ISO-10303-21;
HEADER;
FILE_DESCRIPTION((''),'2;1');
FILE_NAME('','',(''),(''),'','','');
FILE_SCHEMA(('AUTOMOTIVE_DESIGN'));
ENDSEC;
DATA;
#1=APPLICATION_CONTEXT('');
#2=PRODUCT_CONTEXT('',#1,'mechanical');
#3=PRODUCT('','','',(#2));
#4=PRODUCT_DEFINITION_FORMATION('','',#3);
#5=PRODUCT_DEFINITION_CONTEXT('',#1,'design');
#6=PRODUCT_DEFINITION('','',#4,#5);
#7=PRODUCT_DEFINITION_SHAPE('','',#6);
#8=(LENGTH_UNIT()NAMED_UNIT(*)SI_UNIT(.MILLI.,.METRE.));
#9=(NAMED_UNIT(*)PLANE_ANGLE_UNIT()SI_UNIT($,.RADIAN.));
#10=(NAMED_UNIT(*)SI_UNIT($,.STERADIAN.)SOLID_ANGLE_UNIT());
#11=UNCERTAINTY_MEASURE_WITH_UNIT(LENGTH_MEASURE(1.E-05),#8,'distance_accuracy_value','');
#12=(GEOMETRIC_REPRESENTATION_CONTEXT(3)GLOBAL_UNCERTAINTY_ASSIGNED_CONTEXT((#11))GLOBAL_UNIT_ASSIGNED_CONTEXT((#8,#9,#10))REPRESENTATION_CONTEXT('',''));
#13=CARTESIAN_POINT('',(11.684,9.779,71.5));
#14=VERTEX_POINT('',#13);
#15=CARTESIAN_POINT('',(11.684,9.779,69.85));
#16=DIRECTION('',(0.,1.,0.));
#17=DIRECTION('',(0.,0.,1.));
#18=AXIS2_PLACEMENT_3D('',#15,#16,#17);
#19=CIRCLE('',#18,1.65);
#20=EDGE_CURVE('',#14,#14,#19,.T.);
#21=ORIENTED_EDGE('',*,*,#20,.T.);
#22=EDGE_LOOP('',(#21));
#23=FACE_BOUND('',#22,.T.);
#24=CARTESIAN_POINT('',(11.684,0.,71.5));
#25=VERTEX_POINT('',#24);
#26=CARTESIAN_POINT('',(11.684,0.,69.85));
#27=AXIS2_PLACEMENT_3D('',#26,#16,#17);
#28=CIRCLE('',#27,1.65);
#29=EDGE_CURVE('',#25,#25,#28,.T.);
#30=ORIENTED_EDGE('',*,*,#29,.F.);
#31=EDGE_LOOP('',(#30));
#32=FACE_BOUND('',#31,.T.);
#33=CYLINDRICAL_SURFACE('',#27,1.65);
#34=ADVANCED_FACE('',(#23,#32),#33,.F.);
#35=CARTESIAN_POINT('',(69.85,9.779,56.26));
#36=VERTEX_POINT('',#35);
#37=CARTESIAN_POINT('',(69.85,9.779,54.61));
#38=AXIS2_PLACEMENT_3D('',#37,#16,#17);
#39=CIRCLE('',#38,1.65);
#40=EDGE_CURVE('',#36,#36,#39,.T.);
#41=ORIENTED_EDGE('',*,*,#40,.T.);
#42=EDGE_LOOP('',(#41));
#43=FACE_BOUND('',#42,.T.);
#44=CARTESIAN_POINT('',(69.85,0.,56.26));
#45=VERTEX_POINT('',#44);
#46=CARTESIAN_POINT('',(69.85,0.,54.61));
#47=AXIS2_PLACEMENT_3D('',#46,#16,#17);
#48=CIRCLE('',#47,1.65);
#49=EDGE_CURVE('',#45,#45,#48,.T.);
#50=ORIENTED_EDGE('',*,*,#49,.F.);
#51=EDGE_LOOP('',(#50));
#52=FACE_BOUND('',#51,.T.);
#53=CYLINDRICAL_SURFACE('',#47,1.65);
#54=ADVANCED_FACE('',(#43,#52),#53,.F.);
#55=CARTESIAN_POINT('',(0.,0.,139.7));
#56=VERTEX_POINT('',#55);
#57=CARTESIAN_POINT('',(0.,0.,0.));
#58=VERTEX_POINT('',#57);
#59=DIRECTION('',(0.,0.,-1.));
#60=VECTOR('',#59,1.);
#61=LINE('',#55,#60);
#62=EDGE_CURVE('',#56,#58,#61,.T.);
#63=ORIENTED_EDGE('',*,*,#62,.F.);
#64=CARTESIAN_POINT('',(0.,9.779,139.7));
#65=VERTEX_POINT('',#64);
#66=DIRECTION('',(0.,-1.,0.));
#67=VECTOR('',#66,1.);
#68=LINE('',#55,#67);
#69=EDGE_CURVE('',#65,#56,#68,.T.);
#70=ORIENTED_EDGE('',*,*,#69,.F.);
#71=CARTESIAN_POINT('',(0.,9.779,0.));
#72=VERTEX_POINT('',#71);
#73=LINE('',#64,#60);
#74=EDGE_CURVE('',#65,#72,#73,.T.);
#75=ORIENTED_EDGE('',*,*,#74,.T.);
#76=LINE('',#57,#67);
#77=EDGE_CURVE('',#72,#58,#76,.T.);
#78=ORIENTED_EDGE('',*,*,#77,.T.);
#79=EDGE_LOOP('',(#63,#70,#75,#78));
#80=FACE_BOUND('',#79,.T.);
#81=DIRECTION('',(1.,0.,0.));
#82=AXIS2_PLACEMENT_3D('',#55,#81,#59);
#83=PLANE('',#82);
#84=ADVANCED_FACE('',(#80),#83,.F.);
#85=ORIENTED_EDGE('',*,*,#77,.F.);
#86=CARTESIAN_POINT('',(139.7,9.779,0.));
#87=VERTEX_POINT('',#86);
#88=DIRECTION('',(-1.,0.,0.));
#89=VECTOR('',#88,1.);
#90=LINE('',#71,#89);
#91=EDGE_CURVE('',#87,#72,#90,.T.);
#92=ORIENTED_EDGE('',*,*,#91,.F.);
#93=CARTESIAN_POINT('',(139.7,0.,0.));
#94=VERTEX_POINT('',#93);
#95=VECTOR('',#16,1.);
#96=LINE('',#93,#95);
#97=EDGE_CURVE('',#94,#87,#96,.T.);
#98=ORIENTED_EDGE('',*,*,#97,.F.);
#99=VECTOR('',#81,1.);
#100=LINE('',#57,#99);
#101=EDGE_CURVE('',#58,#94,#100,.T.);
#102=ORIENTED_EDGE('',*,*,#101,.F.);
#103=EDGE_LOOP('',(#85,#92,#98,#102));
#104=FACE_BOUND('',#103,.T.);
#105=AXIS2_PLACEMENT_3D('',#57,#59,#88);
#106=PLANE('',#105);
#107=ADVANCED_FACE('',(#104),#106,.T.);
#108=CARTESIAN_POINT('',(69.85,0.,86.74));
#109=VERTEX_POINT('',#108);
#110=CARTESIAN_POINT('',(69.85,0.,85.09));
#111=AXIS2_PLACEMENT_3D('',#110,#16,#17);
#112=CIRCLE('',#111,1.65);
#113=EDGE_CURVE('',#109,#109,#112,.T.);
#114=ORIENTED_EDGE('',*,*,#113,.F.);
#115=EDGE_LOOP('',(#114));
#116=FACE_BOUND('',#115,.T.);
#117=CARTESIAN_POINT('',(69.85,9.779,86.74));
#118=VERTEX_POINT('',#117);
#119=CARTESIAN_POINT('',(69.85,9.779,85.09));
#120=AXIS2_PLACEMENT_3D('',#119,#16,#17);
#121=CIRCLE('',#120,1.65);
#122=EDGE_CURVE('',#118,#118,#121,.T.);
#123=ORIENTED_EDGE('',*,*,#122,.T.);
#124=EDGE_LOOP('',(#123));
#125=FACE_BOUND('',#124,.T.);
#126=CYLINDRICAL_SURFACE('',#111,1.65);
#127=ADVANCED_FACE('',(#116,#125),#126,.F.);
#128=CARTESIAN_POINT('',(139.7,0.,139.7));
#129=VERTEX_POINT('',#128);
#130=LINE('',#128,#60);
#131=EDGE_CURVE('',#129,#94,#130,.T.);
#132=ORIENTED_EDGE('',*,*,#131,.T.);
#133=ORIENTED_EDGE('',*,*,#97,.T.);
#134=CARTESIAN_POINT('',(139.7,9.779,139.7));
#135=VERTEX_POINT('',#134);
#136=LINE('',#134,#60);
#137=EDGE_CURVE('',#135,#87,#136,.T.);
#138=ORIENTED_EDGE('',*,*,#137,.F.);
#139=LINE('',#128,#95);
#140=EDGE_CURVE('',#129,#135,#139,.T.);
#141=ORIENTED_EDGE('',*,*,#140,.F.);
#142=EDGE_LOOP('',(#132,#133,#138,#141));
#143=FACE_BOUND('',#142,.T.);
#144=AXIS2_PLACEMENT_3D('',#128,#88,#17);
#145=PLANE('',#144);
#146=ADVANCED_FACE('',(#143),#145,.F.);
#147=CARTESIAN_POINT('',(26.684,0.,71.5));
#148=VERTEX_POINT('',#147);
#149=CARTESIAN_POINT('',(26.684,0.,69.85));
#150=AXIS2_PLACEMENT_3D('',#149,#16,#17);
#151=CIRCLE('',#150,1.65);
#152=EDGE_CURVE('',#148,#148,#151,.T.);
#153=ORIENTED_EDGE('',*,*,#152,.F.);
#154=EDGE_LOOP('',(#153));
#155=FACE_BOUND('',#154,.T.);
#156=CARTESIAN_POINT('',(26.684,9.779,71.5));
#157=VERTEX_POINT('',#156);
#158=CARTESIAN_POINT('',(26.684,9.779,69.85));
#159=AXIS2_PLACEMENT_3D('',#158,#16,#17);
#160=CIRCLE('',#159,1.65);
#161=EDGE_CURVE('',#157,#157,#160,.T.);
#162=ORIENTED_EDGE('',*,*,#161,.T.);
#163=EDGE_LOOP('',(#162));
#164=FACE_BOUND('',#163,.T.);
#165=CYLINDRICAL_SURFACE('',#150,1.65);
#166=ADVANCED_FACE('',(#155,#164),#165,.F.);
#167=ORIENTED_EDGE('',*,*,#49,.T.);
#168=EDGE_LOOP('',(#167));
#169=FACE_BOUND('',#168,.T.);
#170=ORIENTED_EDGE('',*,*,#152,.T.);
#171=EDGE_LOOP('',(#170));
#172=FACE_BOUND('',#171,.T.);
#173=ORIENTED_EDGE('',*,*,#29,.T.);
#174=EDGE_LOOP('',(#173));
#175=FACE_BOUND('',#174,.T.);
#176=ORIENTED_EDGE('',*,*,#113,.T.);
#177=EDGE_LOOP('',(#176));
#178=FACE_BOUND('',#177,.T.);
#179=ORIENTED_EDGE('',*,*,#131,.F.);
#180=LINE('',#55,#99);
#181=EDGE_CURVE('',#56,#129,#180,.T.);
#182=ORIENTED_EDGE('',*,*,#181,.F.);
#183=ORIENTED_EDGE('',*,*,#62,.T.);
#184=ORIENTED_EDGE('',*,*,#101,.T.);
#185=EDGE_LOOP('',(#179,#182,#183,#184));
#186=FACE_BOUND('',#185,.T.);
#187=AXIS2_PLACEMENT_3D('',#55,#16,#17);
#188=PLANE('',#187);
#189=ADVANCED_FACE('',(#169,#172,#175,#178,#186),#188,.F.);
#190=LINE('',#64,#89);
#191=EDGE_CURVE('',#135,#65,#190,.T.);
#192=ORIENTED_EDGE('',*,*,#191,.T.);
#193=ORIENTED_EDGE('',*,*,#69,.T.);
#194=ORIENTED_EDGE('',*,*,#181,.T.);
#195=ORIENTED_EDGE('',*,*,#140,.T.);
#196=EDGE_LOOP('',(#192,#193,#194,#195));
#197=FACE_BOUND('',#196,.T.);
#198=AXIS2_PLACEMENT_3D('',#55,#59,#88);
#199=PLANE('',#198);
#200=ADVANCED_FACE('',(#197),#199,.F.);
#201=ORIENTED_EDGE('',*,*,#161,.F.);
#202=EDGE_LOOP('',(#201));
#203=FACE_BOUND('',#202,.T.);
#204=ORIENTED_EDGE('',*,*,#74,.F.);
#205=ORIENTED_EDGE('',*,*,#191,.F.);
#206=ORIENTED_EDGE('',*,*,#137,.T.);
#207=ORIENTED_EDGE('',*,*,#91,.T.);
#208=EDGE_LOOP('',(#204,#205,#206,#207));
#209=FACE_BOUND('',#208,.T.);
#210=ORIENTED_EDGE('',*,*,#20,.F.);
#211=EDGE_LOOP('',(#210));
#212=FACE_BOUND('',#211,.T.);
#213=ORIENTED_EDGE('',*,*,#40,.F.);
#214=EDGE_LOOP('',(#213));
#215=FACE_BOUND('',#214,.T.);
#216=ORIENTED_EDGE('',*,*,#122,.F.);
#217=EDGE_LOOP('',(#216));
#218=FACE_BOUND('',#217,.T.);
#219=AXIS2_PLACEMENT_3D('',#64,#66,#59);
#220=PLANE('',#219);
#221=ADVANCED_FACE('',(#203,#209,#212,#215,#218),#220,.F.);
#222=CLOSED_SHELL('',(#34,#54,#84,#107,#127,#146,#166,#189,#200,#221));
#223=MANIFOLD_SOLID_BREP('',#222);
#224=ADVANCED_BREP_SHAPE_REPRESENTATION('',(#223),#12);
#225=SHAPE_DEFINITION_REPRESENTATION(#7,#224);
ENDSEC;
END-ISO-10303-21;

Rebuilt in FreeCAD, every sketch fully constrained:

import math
import FreeCAD as App
import Part
import Sketcher
Q = App.Units.Quantity


def add_polygon(sketch, points):
    """Adds a closed chain of lines whose ends are joined by coincident constraints."""
    first, n = sketch.GeometryCount, len(points)
    for a, b in zip(points, points[1:] + points[:1]):
        sketch.addGeometry(Part.LineSegment(App.Vector(*a, 0), App.Vector(*b, 0)), False)
    for i in range(n):
        sketch.addConstraint(Sketcher.Constraint("Coincident", first + i, 2, first + (i + 1) % n, 1))

doc = App.newDocument("Part")
body = doc.addObject("PartDesign::Body", "Body")

# Sketch on XY plane
sketch1 = body.newObject("Sketcher::SketchObject", "Sketch")
sketch1.AttachmentSupport = (doc.getObject("XY_Plane"), [""])
sketch1.MapMode = "FlatFace"
add_polygon(sketch1, [(0, 10), (0, 0), (140, 0), (140, 10)])  # lines 0-3
sketch1.addConstraint([
    Sketcher.Constraint("Vertical", 0),
    Sketcher.Constraint("Horizontal", 1),
    Sketcher.Constraint("Vertical", 2),
    Sketcher.Constraint("Horizontal", 3),
    Sketcher.Constraint("Coincident", 0, 2, -1, 1),
    Sketcher.Constraint("DistanceX", 1, 1, 1, 2, Q("5.5 in")),
    Sketcher.Constraint("DistanceY", 0, 2, 0, 1, Q("0.385 in")),
])
pad1 = body.newObject("PartDesign::Pad", "Pad")
pad1.Profile = sketch1
pad1.Length = Q("5.5 in")

# Sketch on XZ plane
sketch2 = body.newObject("Sketcher::SketchObject", "Sketch001")
sketch2.AttachmentSupport = (doc.getObject("XZ_Plane"), [""])
sketch2.MapMode = "FlatFace"
sketch2.AttachmentOffset = App.Placement(App.Vector(0, 0, -0.385 * 25.4), App.Rotation())
sketch2.addGeometry([
    Part.Circle(App.Vector(11.7, 69.8, 0), App.Vector(0, 0, 1), 1.6),
    Part.Circle(App.Vector(26.7, 69.8, 0), App.Vector(0, 0, 1), 1.6),
], False)
sketch2.addConstraint([
    Sketcher.Constraint("Equal", 0, 1),
    Sketcher.Constraint("Horizontal", 0, 3, 1, 3),
    Sketcher.Constraint("Diameter", 0, Q("3.3 mm")),
    Sketcher.Constraint("DistanceX", -1, 1, 0, 3, Q("0.46 in")),
    Sketcher.Constraint("DistanceY", -1, 1, 0, 3, Q("2.75 in")),
    Sketcher.Constraint("DistanceX", -1, 1, 1, 3, Q("26.684 mm")),
])
pocket1 = body.newObject("PartDesign::Pocket", "Pocket")
pocket1.Profile = sketch2
pocket1.Type = "ThroughAll"
pocket1.Reversed = True

# Sketch on XZ plane
sketch3 = body.newObject("Sketcher::SketchObject", "Sketch002")
sketch3.AttachmentSupport = (doc.getObject("XZ_Plane"), [""])
sketch3.MapMode = "FlatFace"
sketch3.AttachmentOffset = App.Placement(App.Vector(0, 0, -0.385 * 25.4), App.Rotation())
sketch3.addGeometry([
    Part.ArcOfCircle(Part.Circle(App.Vector(69.8, 54.6, 0), App.Vector(0, 0, 1), 1.6), math.radians(-90), math.radians(0)),  # 0
    Part.ArcOfCircle(Part.Circle(App.Vector(69.8, 54.6, 0), App.Vector(0, 0, 1), 1.6), math.radians(90), math.radians(270)),  # 1
    Part.ArcOfCircle(Part.Circle(App.Vector(69.8, 54.6, 0), App.Vector(0, 0, 1), 1.6), math.radians(0), math.radians(90)),  # 2
    Part.ArcOfCircle(Part.Circle(App.Vector(69.8, 85.1, 0), App.Vector(0, 0, 1), 1.6), math.radians(-90), math.radians(0)),  # 3
    Part.ArcOfCircle(Part.Circle(App.Vector(69.8, 85.1, 0), App.Vector(0, 0, 1), 1.6), math.radians(90), math.radians(270)),  # 4
    Part.ArcOfCircle(Part.Circle(App.Vector(69.8, 85.1, 0), App.Vector(0, 0, 1), 1.6), math.radians(0), math.radians(90)),  # 5
], False)
sketch3.addConstraint([
    Sketcher.Constraint("Tangent", 0, 1, 1, 2),
    Sketcher.Constraint("Tangent", 1, 1, 2, 2),
    Sketcher.Constraint("Tangent", 2, 1, 0, 2),
    Sketcher.Constraint("Tangent", 3, 1, 4, 2),
    Sketcher.Constraint("Tangent", 4, 1, 5, 2),
    Sketcher.Constraint("Tangent", 5, 1, 3, 2),
    Sketcher.Constraint("Equal", 2, 3),
    Sketcher.Constraint("Horizontal", 1, 3, 2, 1),
    Sketcher.Constraint("Horizontal", 4, 3, 5, 1),
    Sketcher.Constraint("Vertical", 2, 3, 3, 3),
    Sketcher.Constraint("Vertical", 5, 3, 0, 1),
    Sketcher.Constraint("Vertical", 0, 1, 1, 1),
    Sketcher.Constraint("Vertical", 1, 1, 3, 1),
    Sketcher.Constraint("Vertical", 3, 1, 4, 1),
    Sketcher.Constraint("DistanceY", 0, 3, 3, 3, Q("1.2 in")),
    Sketcher.Constraint("DistanceX", -1, 1, 0, 3, Q("2.75 in")),
    Sketcher.Constraint("DistanceY", -1, 1, 0, 3, Q("2.15 in")),
    Sketcher.Constraint("Radius", 0, Q("1.65 mm")),
])
pocket2 = body.newObject("PartDesign::Pocket", "Pocket001")
pocket2.Profile = sketch3
pocket2.Type = "ThroughAll"
pocket2.Reversed = True

doc.recompute()
